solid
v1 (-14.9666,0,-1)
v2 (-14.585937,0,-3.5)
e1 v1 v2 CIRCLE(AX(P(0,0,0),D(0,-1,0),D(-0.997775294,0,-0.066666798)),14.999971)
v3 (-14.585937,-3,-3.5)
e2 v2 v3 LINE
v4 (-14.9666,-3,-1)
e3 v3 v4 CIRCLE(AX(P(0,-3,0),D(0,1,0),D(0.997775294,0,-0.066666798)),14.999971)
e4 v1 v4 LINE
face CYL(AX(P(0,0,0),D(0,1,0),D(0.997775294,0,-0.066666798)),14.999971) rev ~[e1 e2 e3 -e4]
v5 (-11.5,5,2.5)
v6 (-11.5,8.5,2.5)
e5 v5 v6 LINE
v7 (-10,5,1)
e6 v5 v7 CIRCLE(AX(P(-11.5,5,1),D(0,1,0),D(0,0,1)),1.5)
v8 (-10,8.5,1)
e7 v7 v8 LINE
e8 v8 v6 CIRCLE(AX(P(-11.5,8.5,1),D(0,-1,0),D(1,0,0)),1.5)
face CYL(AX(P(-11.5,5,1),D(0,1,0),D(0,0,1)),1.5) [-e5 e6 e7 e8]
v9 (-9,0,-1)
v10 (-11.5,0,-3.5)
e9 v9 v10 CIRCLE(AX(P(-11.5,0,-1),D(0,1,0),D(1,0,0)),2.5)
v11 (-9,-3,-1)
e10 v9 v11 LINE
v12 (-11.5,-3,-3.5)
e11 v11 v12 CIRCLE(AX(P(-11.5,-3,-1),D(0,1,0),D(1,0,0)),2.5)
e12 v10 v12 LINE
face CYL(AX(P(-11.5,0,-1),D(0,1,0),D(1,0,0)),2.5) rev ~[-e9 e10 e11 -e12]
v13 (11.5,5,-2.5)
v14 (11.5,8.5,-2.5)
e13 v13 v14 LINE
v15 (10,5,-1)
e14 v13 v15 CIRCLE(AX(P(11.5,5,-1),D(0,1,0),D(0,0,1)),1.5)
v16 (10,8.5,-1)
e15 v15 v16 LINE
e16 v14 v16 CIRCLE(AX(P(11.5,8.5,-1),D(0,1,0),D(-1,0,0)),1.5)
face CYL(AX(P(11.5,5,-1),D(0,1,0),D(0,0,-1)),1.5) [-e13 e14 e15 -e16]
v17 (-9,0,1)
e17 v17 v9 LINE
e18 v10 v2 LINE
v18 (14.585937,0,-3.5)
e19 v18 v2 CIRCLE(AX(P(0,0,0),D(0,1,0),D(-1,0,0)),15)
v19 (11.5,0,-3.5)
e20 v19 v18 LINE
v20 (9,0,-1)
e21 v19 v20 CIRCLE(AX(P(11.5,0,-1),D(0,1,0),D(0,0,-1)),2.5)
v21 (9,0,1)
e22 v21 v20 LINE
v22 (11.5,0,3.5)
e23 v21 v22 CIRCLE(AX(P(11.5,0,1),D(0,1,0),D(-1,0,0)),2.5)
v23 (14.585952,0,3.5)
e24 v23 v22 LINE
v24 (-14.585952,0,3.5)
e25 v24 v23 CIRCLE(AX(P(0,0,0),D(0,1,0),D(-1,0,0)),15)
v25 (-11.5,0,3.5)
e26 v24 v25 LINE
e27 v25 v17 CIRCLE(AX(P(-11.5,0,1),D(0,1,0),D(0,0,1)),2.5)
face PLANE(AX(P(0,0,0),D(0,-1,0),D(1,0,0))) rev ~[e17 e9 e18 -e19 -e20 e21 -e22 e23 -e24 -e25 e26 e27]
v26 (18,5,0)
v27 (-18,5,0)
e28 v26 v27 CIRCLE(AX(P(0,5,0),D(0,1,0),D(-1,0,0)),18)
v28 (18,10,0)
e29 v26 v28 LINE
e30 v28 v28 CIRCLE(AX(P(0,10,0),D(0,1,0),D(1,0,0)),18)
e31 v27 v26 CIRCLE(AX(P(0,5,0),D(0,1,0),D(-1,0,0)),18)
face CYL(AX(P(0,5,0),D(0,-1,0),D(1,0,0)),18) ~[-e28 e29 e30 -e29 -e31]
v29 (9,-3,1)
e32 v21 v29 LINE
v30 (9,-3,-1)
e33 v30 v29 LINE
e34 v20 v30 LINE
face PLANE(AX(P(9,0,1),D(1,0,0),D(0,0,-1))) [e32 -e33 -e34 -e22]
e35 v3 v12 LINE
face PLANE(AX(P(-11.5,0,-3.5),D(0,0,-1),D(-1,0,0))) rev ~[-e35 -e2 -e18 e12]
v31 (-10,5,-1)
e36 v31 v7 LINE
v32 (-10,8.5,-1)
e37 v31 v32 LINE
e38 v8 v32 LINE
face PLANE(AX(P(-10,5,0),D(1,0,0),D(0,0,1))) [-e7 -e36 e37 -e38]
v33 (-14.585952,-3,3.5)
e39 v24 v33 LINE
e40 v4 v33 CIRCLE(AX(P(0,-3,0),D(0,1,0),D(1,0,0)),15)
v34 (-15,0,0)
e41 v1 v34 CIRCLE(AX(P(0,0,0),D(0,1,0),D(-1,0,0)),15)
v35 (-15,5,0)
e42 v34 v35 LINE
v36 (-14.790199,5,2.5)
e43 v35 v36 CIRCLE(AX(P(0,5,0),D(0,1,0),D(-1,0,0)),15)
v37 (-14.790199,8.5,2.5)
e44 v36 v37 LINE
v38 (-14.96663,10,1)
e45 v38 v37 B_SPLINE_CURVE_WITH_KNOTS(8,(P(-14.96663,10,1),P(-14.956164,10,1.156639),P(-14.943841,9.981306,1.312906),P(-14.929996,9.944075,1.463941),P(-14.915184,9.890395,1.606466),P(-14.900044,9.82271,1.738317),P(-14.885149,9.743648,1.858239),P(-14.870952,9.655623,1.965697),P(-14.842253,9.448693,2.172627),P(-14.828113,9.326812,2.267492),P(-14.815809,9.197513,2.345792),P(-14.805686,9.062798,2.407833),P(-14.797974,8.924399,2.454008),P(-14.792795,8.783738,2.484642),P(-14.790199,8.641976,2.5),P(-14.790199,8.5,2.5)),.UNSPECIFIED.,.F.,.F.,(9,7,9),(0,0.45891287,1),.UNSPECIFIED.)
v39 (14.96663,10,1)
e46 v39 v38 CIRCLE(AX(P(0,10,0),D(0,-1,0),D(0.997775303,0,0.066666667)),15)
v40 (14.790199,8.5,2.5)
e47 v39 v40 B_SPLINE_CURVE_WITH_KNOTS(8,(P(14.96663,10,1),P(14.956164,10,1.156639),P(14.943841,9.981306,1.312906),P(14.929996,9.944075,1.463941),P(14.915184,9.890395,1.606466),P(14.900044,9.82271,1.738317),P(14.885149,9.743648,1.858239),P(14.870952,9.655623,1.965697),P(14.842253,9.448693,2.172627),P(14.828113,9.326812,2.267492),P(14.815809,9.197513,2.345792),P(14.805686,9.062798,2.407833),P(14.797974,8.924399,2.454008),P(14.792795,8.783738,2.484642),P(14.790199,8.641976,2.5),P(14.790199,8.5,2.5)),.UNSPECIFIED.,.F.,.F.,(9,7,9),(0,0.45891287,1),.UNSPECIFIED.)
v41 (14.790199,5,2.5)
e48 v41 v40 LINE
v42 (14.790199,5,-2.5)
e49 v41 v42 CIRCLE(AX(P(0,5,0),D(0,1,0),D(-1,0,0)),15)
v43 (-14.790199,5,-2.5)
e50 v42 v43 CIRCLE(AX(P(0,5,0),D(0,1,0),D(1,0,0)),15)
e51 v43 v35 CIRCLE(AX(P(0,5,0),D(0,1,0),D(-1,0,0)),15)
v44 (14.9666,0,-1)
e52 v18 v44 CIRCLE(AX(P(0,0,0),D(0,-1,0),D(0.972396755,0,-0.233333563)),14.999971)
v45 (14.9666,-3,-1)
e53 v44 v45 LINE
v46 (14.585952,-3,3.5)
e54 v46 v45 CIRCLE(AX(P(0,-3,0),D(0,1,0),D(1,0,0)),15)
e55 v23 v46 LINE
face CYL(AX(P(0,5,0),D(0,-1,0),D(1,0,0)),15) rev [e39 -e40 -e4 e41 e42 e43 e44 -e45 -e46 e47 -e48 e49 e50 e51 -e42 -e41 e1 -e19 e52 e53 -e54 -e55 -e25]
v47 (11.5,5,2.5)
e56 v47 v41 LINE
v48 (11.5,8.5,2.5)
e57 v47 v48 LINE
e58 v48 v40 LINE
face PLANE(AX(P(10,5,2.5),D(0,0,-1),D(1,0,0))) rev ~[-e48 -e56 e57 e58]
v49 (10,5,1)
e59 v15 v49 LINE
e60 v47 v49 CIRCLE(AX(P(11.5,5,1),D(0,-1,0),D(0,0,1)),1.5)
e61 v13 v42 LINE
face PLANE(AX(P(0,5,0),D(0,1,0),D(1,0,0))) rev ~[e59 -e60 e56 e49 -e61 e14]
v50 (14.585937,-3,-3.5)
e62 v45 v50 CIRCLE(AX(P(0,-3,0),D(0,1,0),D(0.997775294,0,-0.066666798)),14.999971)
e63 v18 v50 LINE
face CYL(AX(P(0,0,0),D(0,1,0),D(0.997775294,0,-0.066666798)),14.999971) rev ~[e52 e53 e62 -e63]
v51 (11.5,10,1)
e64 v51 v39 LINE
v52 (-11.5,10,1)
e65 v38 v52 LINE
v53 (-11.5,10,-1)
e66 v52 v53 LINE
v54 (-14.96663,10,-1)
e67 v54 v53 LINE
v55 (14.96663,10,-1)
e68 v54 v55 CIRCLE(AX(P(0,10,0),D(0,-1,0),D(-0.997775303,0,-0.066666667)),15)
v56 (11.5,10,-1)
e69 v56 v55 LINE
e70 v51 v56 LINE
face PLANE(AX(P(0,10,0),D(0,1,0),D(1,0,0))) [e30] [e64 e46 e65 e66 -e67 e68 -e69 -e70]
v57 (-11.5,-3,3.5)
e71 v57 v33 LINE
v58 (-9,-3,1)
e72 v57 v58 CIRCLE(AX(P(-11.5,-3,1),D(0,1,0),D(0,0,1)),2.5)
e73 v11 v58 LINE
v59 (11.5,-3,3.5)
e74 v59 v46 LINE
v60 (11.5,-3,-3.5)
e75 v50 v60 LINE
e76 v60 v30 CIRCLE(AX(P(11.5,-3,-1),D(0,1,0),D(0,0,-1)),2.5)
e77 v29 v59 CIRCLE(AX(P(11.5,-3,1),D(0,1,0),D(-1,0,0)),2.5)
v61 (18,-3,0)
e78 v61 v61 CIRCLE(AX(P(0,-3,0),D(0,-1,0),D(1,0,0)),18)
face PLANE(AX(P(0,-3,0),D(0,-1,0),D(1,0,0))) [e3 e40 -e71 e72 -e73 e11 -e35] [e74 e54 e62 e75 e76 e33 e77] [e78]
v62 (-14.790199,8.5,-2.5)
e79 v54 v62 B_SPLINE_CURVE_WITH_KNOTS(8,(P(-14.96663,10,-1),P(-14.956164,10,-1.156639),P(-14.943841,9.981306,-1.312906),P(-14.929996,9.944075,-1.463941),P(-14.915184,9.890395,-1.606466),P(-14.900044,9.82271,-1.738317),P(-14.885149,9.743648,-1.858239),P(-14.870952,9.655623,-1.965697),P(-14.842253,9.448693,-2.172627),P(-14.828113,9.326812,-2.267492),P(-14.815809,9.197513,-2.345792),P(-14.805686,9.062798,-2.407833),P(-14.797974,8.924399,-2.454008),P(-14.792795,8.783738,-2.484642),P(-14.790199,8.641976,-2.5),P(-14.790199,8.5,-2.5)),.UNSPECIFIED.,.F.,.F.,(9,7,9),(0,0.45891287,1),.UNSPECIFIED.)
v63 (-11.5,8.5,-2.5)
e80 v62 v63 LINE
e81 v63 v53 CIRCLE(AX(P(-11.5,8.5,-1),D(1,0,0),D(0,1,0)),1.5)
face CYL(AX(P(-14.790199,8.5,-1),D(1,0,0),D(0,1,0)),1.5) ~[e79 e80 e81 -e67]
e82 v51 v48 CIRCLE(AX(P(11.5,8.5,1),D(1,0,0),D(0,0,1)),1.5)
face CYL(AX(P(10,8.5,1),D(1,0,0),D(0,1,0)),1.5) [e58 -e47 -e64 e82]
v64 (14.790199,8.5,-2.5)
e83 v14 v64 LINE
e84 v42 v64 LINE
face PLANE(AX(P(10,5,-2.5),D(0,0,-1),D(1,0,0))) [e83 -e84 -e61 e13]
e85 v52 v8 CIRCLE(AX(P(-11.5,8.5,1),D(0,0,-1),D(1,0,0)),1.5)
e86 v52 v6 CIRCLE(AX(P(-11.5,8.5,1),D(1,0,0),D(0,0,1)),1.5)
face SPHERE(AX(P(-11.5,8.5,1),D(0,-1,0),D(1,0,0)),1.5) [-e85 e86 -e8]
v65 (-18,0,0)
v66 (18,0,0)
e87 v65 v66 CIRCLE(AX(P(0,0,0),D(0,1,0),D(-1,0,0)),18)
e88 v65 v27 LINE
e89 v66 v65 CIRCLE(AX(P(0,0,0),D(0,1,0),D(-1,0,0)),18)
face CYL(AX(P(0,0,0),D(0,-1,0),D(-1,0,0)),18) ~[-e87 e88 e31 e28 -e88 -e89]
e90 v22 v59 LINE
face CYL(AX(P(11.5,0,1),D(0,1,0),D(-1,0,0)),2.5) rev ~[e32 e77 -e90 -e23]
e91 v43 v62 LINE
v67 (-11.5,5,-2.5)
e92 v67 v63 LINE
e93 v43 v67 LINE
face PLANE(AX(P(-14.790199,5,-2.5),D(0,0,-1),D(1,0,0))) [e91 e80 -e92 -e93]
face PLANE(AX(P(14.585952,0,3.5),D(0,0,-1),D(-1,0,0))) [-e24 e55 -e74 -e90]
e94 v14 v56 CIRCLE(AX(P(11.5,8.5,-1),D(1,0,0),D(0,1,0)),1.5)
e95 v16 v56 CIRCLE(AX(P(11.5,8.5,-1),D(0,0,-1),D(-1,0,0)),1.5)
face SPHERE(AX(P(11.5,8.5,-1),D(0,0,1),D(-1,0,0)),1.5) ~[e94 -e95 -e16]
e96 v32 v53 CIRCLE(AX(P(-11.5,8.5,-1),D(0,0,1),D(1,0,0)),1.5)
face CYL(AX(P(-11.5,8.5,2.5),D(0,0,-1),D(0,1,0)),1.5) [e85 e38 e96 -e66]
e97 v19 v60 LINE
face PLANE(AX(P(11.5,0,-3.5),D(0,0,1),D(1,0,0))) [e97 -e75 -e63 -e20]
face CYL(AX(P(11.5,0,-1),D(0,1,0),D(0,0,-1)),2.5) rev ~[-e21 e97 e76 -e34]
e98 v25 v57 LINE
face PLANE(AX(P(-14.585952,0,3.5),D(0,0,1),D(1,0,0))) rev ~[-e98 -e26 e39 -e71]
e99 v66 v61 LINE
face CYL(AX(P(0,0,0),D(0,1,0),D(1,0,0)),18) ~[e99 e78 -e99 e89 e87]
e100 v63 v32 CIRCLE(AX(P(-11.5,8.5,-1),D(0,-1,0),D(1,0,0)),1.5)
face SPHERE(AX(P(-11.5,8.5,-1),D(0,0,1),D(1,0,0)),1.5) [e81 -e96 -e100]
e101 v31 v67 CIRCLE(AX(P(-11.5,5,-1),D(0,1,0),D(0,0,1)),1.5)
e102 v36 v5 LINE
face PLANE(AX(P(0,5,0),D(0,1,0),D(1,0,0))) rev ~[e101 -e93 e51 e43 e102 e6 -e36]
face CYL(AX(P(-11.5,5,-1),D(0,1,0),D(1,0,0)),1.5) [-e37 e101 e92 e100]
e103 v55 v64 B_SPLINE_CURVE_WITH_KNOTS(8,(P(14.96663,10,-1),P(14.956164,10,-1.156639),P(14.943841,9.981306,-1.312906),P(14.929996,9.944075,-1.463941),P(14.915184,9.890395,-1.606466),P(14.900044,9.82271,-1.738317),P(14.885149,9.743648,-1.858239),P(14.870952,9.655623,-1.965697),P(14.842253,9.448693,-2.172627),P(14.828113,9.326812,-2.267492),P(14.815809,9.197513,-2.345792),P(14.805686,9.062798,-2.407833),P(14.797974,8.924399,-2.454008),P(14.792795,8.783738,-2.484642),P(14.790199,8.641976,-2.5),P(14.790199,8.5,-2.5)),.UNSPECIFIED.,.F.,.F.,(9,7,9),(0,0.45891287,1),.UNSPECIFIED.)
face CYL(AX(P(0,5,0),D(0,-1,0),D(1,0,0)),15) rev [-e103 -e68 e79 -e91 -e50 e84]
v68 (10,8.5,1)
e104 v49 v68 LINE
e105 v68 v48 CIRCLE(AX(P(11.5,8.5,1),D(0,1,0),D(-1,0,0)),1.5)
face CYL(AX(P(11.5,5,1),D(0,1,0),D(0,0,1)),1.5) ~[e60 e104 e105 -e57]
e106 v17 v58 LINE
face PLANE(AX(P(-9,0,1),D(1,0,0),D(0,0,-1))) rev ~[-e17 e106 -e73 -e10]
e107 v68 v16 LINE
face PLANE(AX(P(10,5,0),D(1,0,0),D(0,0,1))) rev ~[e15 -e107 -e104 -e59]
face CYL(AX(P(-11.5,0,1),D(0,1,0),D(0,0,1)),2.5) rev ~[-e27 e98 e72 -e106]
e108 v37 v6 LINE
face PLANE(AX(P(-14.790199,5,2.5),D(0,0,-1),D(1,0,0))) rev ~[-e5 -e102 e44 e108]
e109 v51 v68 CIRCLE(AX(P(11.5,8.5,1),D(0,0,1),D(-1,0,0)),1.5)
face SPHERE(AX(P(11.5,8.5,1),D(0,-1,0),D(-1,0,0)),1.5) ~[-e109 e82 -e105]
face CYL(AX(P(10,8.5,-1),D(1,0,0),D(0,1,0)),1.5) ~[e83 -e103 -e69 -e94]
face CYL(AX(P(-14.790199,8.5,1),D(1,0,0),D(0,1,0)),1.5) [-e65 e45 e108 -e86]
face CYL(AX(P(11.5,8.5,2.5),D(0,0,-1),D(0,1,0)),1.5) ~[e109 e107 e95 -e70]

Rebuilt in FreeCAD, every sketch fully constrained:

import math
import FreeCAD as App
import Part
import Sketcher
from FreeCAD import Vector
Q = App.Units.Quantity


def edges_at(feature, points):
    """Names of the edges that pass closest to the given points."""
    edges = feature.Shape.Edges
    near = lambda p: min(range(len(edges)), key=lambda i: edges[i].distToShape(Part.Vertex(*p))[0])
    return sorted({f"Edge{near(p) + 1}" for p in points})

doc = App.newDocument("Part")
body = doc.addObject("PartDesign::Body", "Body")

sketch1 = body.newObject("Sketcher::SketchObject", "Sketch")
sketch1.AttachmentSupport = (doc.getObject("XZ_Plane"), [""])
sketch1.MapMode = "FlatFace"
sketch1.addGeometry(Part.Circle(Vector(0, 0, 0), Vector(0, 0, 1), 18), False)
sketch1.addGeometry(Part.Circle(Vector(0, 0, 0), Vector(0, 0, 1), 15), False)
sketch1.addConstraint(Sketcher.Constraint("Coincident", 0, 3, -1, 1))
sketch1.addConstraint(Sketcher.Constraint("Coincident", 1, 3, -1, 1))
sketch1.addConstraint(Sketcher.Constraint("Diameter", 0, Q("36 mm")))
sketch1.addConstraint(Sketcher.Constraint("Diameter", 1, Q("30 mm")))
pad1 = body.newObject("PartDesign::Pad", "Pad")
pad1.Profile = sketch1
pad1.Length = 5
pad1.Reversed = True

sketch2 = body.newObject("Sketcher::SketchObject", "Sketch001")
sketch2.AttachmentSupport = (doc.getObject("XZ_Plane"), [""])
sketch2.MapMode = "FlatFace"
sketch2.addGeometry(Part.Circle(Vector(0, 0, 0), Vector(0, 0, 1), 18), False)
sketch2.addConstraint(Sketcher.Constraint("Coincident", 0, 3, -1, 1))
sketch2.addConstraint(Sketcher.Constraint("Diameter", 0, Q("36 mm")))
pad2 = body.newObject("PartDesign::Pad", "Pad001")
pad2.Profile = sketch2
pad2.Length = 3

sketch3 = body.newObject("Sketcher::SketchObject", "Sketch002")
sketch3.AttachmentSupport = (doc.getObject("XZ_Plane"), [""])
sketch3.MapMode = "FlatFace"
sketch3.AttachmentOffset = App.Placement(Vector(0, 0, -5), App.Rotation())
sketch3.addGeometry(Part.Circle(Vector(0, 0, 0), Vector(0, 0, 1), 18), False)
sketch3.addGeometry(Part.LineSegment(Vector(10, 2.5, 0), Vector(14.8, 2.5, 0)), False)
sketch3.addGeometry(Part.ArcOfCircle(Part.Circle(Vector(0, 0, 0), Vector(0, 0, 1), 15), math.radians(10), math.radians(170)), False)
sketch3.addGeometry(Part.LineSegment(Vector(-14.8, 2.5, 0), Vector(-10, 2.5, 0)), False)
sketch3.addGeometry(Part.LineSegment(Vector(-10, 2.5, 0), Vector(-10, -2.5, 0)), False)
sketch3.addGeometry(Part.LineSegment(Vector(-10, -2.5, 0), Vector(-14.8, -2.5, 0)), False)
sketch3.addGeometry(Part.ArcOfCircle(Part.Circle(Vector(0, 0, 0), Vector(0, 0, 1), 15), math.radians(-170), math.radians(-10)), False)
sketch3.addGeometry(Part.LineSegment(Vector(14.8, -2.5, 0), Vector(10, -2.5, 0)), False)
sketch3.addGeometry(Part.LineSegment(Vector(10, -2.5, 0), Vector(10, 2.5, 0)), False)
sketch3.addConstraint(Sketcher.Constraint("Coincident", 1, 2, 2, 1))
sketch3.addConstraint(Sketcher.Constraint("Coincident", 2, 2, 3, 1))
sketch3.addConstraint(Sketcher.Constraint("Coincident", 3, 2, 4, 1))
sketch3.addConstraint(Sketcher.Constraint("Coincident", 4, 2, 5, 1))
sketch3.addConstraint(Sketcher.Constraint("Coincident", 5, 2, 6, 1))
sketch3.addConstraint(Sketcher.Constraint("Coincident", 6, 2, 7, 1))
sketch3.addConstraint(Sketcher.Constraint("Coincident", 7, 2, 8, 1))
sketch3.addConstraint(Sketcher.Constraint("Coincident", 8, 2, 1, 1))
sketch3.addConstraint(Sketcher.Constraint("Horizontal", 1))
sketch3.addConstraint(Sketcher.Constraint("Horizontal", 3))
sketch3.addConstraint(Sketcher.Constraint("Vertical", 4))
sketch3.addConstraint(Sketcher.Constraint("Horizontal", 5))
sketch3.addConstraint(Sketcher.Constraint("Horizontal", 7))
sketch3.addConstraint(Sketcher.Constraint("Vertical", 8))
sketch3.addConstraint(Sketcher.Constraint("Coincident", 0, 3, -1, 1))
sketch3.addConstraint(Sketcher.Constraint("Coincident", 2, 3, -1, 1))
sketch3.addConstraint(Sketcher.Constraint("Coincident", 6, 3, -1, 1))
sketch3.addConstraint(Sketcher.Constraint("Equal", 2, 6))
sketch3.addConstraint(Sketcher.Constraint("Symmetric", 3, 2, 7, 2, -1, 1))
sketch3.addConstraint(Sketcher.Constraint("Horizontal", 1, 2, 2, 2))
sketch3.addConstraint(Sketcher.Constraint("Horizontal", 5, 2, 6, 2))
sketch3.addConstraint(Sketcher.Constraint("Diameter", 0, Q("36 mm")))
sketch3.addConstraint(Sketcher.Constraint("Radius", 2, Q("15 mm")))
sketch3.addConstraint(Sketcher.Constraint("DistanceY", -1, 1, 1, 2, Q("2.5 mm")))
sketch3.addConstraint(Sketcher.Constraint("DistanceX", 3, 2, -1, 1, Q("10 mm")))
pad3 = body.newObject("PartDesign::Pad", "Pad002")
pad3.Profile = sketch3
pad3.Length = 5
pad3.Reversed = True
doc.recompute()

fillet = body.newObject("PartDesign::Fillet", "Fillet")
fillet.Base = (pad3, edges_at(pad3, [
    (-10, 7.5, 2.5),
    (-10, 10, 0),
    (10, 7.5, 2.5),
    (10, 10, 0),
    (10, 7.5, -2.5),
    (-10, 7.5, -2.5),
    (12.395, 10, 2.5),
    (12.395, 10, -2.5),
    (-12.395, 10, 2.5),
    (-12.395, 10, -2.5),
]))
fillet.Radius = 1.5

sketch4 = body.newObject("Sketcher::SketchObject", "Sketch003")
sketch4.AttachmentSupport = (doc.getObject("XZ_Plane"), [""])
sketch4.MapMode = "FlatFace"
sketch4.addGeometry(Part.LineSegment(Vector(-14.6, 3.5, 0), Vector(-11.5, 3.5, 0)), False)
sketch4.addGeometry(Part.ArcOfCircle(Part.Circle(Vector(-11.5, 1, 0), Vector(0, 0, 1), 2.5), math.radians(0), math.radians(90)), False)
sketch4.addGeometry(Part.LineSegment(Vector(-9, 1, 0), Vector(-9, -1, 0)), False)
sketch4.addGeometry(Part.ArcOfCircle(Part.Circle(Vector(-11.5, -1, 0), Vector(0, 0, 1), 2.5), math.radians(-90), math.radians(0)), False)
sketch4.addGeometry(Part.LineSegment(Vector(-11.5, -3.5, 0), Vector(-14.6, -3.5, 0)), False)
sketch4.addGeometry(Part.ArcOfCircle(Part.Circle(Vector(0, 0, 0), Vector(0, 0, 1), 15), math.radians(167), math.radians(193)), False)
sketch4.addGeometry(Part.LineSegment(Vector(14.6, -3.5, 0), Vector(11.5, -3.5, 0)), False)
sketch4.addGeometry(Part.ArcOfCircle(Part.Circle(Vector(11.5, -1, 0), Vector(0, 0, 1), 2.5), math.radians(180), math.radians(270)), False)
sketch4.addGeometry(Part.LineSegment(Vector(9, -1, 0), Vector(9, 1, 0)), False)
sketch4.addGeometry(Part.ArcOfCircle(Part.Circle(Vector(11.5, 1, 0), Vector(0, 0, 1), 2.5), math.radians(90), math.radians(180)), False)
sketch4.addGeometry(Part.LineSegment(Vector(11.5, 3.5, 0), Vector(14.6, 3.5, 0)), False)
sketch4.addGeometry(Part.ArcOfCircle(Part.Circle(Vector(0, 0, 0), Vector(0, 0, 1), 15), math.radians(-13), math.radians(13)), False)
sketch4.addConstraint(Sketcher.Constraint("Tangent", 0, 2, 1, 2))
sketch4.addConstraint(Sketcher.Constraint("Tangent", 1, 1, 2, 1))
sketch4.addConstraint(Sketcher.Constraint("Tangent", 2, 2, 3, 2))
sketch4.addConstraint(Sketcher.Constraint("Tangent", 3, 1, 4, 1))
sketch4.addConstraint(Sketcher.Constraint("Coincident", 4, 2, 5, 2))
sketch4.addConstraint(Sketcher.Constraint("Coincident", 5, 1, 0, 1))
sketch4.addConstraint(Sketcher.Constraint("Tangent", 6, 2, 7, 2))
sketch4.addConstraint(Sketcher.Constraint("Tangent", 7, 1, 8, 1))
sketch4.addConstraint(Sketcher.Constraint("Tangent", 8, 2, 9, 2))
sketch4.addConstraint(Sketcher.Constraint("Tangent", 9, 1, 10, 1))
sketch4.addConstraint(Sketcher.Constraint("Coincident", 10, 2, 11, 2))
sketch4.addConstraint(Sketcher.Constraint("Coincident", 11, 1, 6, 1))
sketch4.addConstraint(Sketcher.Constraint("Horizontal", 0))
sketch4.addConstraint(Sketcher.Constraint("Vertical", 2))
sketch4.addConstraint(Sketcher.Constraint("Horizontal", 4))
sketch4.addConstraint(Sketcher.Constraint("Horizontal", 6))
sketch4.addConstraint(Sketcher.Constraint("Vertical", 8))
sketch4.addConstraint(Sketcher.Constraint("Horizontal", 10))
sketch4.addConstraint(Sketcher.Constraint("Coincident", 5, 3, -1, 1))
sketch4.addConstraint(Sketcher.Constraint("Coincident", 11, 3, -1, 1))
sketch4.addConstraint(Sketcher.Constraint("Equal", 1, 3))
sketch4.addConstraint(Sketcher.Constraint("Equal", 3, 7))
sketch4.addConstraint(Sketcher.Constraint("Equal", 7, 9))
sketch4.addConstraint(Sketcher.Constraint("Equal", 5, 11))
sketch4.addConstraint(Sketcher.Constraint("Symmetric", 1, 3, 7, 3, -1, 1))
sketch4.addConstraint(Sketcher.Constraint("Horizontal", 3, 3, 7, 3))
sketch4.addConstraint(Sketcher.Constraint("Horizontal", 1, 3, 9, 3))
sketch4.addConstraint(Sketcher.Constraint("DistanceY", -1, 1, 1, 3, Q("1 mm")))
sketch4.addConstraint(Sketcher.Constraint("Radius", 5, Q("15 mm")))
sketch4.addConstraint(Sketcher.Constraint("Radius", 1, Q("2.5 mm")))
sketch4.addConstraint(Sketcher.Constraint("DistanceX", 1, 1, -1, 1, Q("9 mm")))
pocket1 = body.newObject("PartDesign::Pocket", "Pocket")
pocket1.Profile = sketch4
pocket1.Type = "ThroughAll"
pocket1.Reversed = True

doc.recompute()
